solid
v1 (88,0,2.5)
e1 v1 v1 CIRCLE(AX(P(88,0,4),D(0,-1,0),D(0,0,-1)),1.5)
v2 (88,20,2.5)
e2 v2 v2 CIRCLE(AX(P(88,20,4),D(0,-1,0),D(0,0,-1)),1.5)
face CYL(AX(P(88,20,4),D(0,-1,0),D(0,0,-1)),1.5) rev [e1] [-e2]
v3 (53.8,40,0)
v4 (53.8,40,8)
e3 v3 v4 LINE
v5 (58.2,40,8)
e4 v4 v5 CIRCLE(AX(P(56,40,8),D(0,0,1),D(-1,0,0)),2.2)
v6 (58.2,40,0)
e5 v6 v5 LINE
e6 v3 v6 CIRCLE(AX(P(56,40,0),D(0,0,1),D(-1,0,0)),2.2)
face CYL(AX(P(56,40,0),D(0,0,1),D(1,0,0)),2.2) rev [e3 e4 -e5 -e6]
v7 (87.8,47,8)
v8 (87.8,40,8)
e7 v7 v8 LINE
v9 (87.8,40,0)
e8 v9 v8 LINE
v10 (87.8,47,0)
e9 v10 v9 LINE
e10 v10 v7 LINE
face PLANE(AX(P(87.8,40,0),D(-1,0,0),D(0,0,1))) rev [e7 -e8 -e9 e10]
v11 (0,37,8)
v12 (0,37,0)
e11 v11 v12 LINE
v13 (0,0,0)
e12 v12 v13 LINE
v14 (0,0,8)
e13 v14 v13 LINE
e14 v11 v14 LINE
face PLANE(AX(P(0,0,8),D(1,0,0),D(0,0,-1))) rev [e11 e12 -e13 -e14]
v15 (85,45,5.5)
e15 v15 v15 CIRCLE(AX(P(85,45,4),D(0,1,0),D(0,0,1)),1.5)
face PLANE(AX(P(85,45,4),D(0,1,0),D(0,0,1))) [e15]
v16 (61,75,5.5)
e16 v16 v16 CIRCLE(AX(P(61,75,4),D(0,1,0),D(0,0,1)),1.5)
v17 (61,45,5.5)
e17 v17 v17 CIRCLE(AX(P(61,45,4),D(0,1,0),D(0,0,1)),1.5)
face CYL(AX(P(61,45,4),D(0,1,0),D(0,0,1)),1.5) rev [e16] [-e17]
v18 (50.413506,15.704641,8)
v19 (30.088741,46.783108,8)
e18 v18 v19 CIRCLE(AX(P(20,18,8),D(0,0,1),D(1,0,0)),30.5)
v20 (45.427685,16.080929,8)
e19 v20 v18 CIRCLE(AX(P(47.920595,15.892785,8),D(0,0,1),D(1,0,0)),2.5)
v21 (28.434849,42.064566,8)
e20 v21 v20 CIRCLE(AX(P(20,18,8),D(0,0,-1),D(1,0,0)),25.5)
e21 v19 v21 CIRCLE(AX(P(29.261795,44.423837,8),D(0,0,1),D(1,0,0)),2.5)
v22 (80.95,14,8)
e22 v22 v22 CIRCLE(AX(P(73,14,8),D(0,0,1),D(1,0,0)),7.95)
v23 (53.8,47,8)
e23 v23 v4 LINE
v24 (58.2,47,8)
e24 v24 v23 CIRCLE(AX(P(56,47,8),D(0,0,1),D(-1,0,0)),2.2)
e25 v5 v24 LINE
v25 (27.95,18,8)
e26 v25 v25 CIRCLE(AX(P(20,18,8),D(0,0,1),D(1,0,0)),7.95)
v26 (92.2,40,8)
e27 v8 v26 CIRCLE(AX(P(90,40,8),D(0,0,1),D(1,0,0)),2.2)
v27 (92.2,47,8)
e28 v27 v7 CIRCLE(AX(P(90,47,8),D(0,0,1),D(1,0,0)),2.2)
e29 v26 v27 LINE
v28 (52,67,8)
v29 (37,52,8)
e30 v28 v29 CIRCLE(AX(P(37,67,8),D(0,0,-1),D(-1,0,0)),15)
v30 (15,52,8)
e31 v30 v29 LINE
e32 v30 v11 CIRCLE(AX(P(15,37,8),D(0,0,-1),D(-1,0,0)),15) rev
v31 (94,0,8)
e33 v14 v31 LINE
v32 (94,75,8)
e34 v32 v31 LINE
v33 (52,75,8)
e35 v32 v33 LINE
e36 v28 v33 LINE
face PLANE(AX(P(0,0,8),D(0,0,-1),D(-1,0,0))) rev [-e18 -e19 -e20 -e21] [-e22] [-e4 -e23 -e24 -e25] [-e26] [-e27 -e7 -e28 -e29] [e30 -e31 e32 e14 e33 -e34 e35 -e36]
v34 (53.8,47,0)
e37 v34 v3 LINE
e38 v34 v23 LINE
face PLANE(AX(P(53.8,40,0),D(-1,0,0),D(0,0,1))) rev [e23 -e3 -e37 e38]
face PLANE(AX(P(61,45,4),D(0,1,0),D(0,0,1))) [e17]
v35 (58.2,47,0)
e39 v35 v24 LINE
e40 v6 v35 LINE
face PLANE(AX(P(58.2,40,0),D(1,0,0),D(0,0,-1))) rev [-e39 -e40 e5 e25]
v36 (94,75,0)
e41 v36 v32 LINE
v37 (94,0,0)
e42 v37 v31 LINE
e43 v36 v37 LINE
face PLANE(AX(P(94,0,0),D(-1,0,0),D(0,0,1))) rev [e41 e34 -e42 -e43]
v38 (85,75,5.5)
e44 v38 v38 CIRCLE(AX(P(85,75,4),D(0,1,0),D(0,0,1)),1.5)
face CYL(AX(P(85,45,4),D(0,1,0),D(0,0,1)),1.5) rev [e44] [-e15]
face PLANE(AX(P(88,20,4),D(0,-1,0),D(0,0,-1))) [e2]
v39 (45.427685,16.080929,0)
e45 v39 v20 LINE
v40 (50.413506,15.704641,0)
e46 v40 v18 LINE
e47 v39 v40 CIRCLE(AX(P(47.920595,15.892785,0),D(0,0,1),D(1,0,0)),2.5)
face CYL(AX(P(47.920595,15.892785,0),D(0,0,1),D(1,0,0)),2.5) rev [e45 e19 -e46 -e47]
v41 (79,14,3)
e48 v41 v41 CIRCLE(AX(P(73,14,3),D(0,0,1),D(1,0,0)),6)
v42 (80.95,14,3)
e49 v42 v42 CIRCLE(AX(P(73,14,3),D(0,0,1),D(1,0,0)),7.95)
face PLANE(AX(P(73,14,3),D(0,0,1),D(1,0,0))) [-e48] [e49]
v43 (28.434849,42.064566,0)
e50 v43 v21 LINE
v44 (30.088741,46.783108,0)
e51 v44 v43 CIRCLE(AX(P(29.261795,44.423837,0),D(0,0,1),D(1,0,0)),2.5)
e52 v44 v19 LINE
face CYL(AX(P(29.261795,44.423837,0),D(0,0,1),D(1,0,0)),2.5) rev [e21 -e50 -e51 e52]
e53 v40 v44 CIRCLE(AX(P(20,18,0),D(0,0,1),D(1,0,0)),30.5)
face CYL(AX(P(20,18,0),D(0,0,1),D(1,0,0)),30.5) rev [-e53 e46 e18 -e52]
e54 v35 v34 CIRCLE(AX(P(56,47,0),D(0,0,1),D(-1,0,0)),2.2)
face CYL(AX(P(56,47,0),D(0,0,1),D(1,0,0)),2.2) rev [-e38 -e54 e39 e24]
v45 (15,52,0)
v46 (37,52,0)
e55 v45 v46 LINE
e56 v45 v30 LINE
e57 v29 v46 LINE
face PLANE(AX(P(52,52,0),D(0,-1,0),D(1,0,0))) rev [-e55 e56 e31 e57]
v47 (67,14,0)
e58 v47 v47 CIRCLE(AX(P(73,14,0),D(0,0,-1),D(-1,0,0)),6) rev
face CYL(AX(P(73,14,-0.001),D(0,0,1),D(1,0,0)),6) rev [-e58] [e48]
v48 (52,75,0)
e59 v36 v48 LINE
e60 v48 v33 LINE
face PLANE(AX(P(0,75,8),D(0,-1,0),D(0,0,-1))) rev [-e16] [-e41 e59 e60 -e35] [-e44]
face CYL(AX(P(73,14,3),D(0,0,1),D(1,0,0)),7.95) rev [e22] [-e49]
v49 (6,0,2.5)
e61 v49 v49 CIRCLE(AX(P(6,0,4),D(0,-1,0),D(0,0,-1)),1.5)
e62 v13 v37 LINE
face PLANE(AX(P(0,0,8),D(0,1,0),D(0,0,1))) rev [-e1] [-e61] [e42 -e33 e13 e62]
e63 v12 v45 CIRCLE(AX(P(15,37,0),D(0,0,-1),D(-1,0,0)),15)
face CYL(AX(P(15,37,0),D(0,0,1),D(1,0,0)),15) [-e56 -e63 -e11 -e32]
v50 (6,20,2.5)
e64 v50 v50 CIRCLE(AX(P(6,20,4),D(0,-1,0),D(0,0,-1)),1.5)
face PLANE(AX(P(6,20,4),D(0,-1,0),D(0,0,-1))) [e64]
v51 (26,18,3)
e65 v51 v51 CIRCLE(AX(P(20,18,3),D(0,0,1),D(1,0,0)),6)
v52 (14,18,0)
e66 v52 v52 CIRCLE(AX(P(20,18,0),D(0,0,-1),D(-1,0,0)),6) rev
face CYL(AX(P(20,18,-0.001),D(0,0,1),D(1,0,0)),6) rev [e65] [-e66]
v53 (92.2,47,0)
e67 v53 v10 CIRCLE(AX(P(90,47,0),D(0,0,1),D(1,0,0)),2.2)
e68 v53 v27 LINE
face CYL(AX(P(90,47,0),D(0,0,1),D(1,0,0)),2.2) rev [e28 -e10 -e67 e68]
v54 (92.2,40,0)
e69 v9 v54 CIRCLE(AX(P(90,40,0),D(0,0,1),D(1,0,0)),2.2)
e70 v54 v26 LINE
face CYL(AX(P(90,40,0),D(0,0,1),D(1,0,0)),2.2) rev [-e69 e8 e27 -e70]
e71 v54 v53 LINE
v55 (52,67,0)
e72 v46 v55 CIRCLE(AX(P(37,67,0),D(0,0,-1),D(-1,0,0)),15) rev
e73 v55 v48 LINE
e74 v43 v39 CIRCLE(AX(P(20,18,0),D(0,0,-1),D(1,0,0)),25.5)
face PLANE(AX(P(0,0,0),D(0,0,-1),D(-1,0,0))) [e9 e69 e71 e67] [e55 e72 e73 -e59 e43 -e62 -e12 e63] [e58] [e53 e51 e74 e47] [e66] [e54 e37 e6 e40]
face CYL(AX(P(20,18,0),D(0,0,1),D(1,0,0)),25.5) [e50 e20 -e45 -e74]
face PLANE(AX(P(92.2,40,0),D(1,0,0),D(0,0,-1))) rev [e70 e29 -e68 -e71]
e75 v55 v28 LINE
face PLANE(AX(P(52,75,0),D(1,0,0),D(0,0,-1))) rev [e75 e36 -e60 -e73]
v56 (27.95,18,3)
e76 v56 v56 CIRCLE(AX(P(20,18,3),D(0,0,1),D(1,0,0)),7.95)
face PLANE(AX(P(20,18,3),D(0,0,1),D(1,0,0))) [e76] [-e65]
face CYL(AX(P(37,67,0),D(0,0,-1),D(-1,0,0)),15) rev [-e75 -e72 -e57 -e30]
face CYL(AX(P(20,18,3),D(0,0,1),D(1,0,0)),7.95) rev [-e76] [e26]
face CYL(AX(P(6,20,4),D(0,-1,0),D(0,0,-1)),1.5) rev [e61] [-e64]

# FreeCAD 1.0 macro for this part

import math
import FreeCAD as App
import Part
import Sketcher
from FreeCAD import Vector
Q = App.Units.Quantity


def edges_at(feature, points):
    """Names of the edges that pass closest to the given points."""
    edges = feature.Shape.Edges
    near = lambda p: min(range(len(edges)), key=lambda i: edges[i].distToShape(Part.Vertex(*p))[0])
    return sorted({f"Edge{near(p) + 1}" for p in points})

doc = App.newDocument("Part")
params = doc.addObject("Spreadsheet::Sheet", "Params")
for row, (alias, value) in enumerate([
    ("sketch1_height", "75 mm"),
    ("pad1_length", "8 mm"),
    ("sketch2_diameter", "15.9 mm"),
    ("pocket1_length", "5 mm"),
    ("sketch3_diameter", "12 mm"),
    ("sketch4_diameter", "12 mm"),
    ("sketch5_radius", "30.5 mm"),
    ("sketch5_radius2", "2.5 mm"),
    ("sketch6_height", "75 mm"),
    ("sketch7_radius", "2.2 mm"),
    ("sketch7_height", "7 mm"),
    ("sketch8_width", "52 mm"),
    ("sketch8_height", "23 mm"),
    ("sketch9_diameter", "3 mm"),
    ("pocket8_length", "30 mm"),
    ("fillet_radius", "15 mm"),
    ("sketch10_diameter", "3 mm"),
    ("pocket9_length", "20 mm"),
], start=1):
    params.set(f"A{row}", alias)
    params.set(f"B{row}", "=" + value)
    params.setAlias(f"B{row}", alias)

body = doc.addObject("PartDesign::Body", "Body")

# Sketch on XY plane
sketch1 = body.newObject("Sketcher::SketchObject", "Sketch")
sketch1.AttachmentSupport = (doc.getObject("XY_Plane"), [""])
sketch1.MapMode = "FlatFace"
sketch1.addGeometry([
    Part.LineSegment(Vector(0, 75, 0), Vector(0, 0, 0)),
    Part.LineSegment(Vector(0, 0, 0), Vector(114, 0, 0)),
    Part.LineSegment(Vector(114, 0, 0), Vector(114, 75, 0)),
    Part.LineSegment(Vector(114, 75, 0), Vector(0, 75, 0)),
], False)
sketch1.addConstraint([
    Sketcher.Constraint("Coincident", 0, 2, 1, 1),
    Sketcher.Constraint("Coincident", 1, 2, 2, 1),
    Sketcher.Constraint("Coincident", 2, 2, 3, 1),
    Sketcher.Constraint("Coincident", 3, 2, 0, 1),
    Sketcher.Constraint("Vertical", 0),
    Sketcher.Constraint("Horizontal", 1),
    Sketcher.Constraint("Vertical", 2),
    Sketcher.Constraint("Horizontal", 3),
    Sketcher.Constraint("Coincident", 0, 2, -1, 1),
    Sketcher.Constraint("DistanceY", 0, 2, 0, 1, Q("75 mm")),
    Sketcher.Constraint("DistanceX", 1, 1, 1, 2, Q("114.43299 mm")),
])
sketch1.setExpression("Constraints[9]", "Params.sketch1_height")
pad1 = body.newObject("PartDesign::Pad", "Pad")
pad1.Profile = sketch1
pad1.setExpression("Length", "Params.pad1_length")

# Sketch on XY plane
sketch2 = body.newObject("Sketcher::SketchObject", "Sketch001")
sketch2.AttachmentSupport = (doc.getObject("XY_Plane"), [""])
sketch2.MapMode = "FlatFace"
sketch2.AttachmentOffset = App.Placement(Vector(0, 0, 8), App.Rotation())
sketch2.addGeometry([
    Part.Circle(Vector(20, 18, 0), Vector(0, 0, 1), 8),
    Part.Circle(Vector(73, 14, 0), Vector(0, 0, 1), 8),
], False)
sketch2.addConstraint([
    Sketcher.Constraint("Equal", 0, 1),
    Sketcher.Constraint("Diameter", 0, Q("15.9 mm")),
    Sketcher.Constraint("DistanceX", -1, 1, 0, 3, Q("20 mm")),
    Sketcher.Constraint("DistanceY", -1, 1, 0, 3, Q("18 mm")),
    Sketcher.Constraint("DistanceX", -1, 1, 1, 3, Q("73 mm")),
    Sketcher.Constraint("DistanceY", -1, 1, 1, 3, Q("14 mm")),
])
sketch2.setExpression("Constraints[1]", "Params.sketch2_diameter")
pocket1 = body.newObject("PartDesign::Pocket", "Pocket")
pocket1.Profile = sketch2
pocket1.setExpression("Length", "Params.pocket1_length")

# Sketch on XY plane
sketch3 = body.newObject("Sketcher::SketchObject", "Sketch002")
sketch3.AttachmentSupport = (doc.getObject("XY_Plane"), [""])
sketch3.MapMode = "FlatFace"
sketch3.AttachmentOffset = App.Placement(Vector(0, 0, 3), App.Rotation())
sketch3.addGeometry(Part.Circle(Vector(20, 18, 0), Vector(0, 0, 1), 6), False)
sketch3.addConstraint([
    Sketcher.Constraint("Diameter", 0, Q("12 mm")),
    Sketcher.Constraint("DistanceX", -1, 1, 0, 3, Q("20 mm")),
    Sketcher.Constraint("DistanceY", -1, 1, 0, 3, Q("18 mm")),
])
sketch3.setExpression("Constraints[0]", "Params.sketch3_diameter")
pocket2 = body.newObject("PartDesign::Pocket", "Pocket001")
pocket2.Profile = sketch3
pocket2.Type = "UpToFirst"

# Sketch on XY plane
sketch4 = body.newObject("Sketcher::SketchObject", "Sketch003")
sketch4.AttachmentSupport = (doc.getObject("XY_Plane"), [""])
sketch4.MapMode = "FlatFace"
sketch4.AttachmentOffset = App.Placement(Vector(0, 0, 3), App.Rotation())
sketch4.addGeometry(Part.Circle(Vector(73, 14, 0), Vector(0, 0, 1), 6), False)
sketch4.addConstraint([
    Sketcher.Constraint("Diameter", 0, Q("12 mm")),
    Sketcher.Constraint("DistanceX", -1, 1, 0, 3, Q("73 mm")),
    Sketcher.Constraint("DistanceY", -1, 1, 0, 3, Q("14 mm")),
])
sketch4.setExpression("Constraints[0]", "Params.sketch4_diameter")
pocket3 = body.newObject("PartDesign::Pocket", "Pocket002")
pocket3.Profile = sketch4
pocket3.Type = "UpToFirst"

# Sketch on XY plane
sketch5 = body.newObject("Sketcher::SketchObject", "Sketch004")
sketch5.AttachmentSupport = (doc.getObject("XY_Plane"), [""])
sketch5.MapMode = "FlatFace"
sketch5.AttachmentOffset = App.Placement(Vector(0, 0, 8), App.Rotation())
sketch5.addGeometry([
    Part.ArcOfCircle(Part.Circle(Vector(20, 18, 0), Vector(0, 0, 1), 30.5), math.radians(-4), math.radians(71)),
    Part.ArcOfCircle(Part.Circle(Vector(29.3, 44.4, 0), Vector(0, 0, 1), 2.5), math.radians(71), math.radians(251)),
    Part.ArcOfCircle(Part.Circle(Vector(20, 18, 0), Vector(0, 0, 1), 25.5), math.radians(-4), math.radians(71)),
    Part.ArcOfCircle(Part.Circle(Vector(47.9, 15.9, 0), Vector(0, 0, 1), 2.5), math.radians(176), math.radians(356)),
], False)
sketch5.addConstraint([
    Sketcher.Constraint("Tangent", 0, 2, 1, 1),
    Sketcher.Constraint("Tangent", 1, 2, 2, 2),
    Sketcher.Constraint("Tangent", 2, 1, 3, 1),
    Sketcher.Constraint("Tangent", 3, 2, 0, 1),
    Sketcher.Constraint("Coincident", 2, 3, 0, 3),
    Sketcher.Constraint("Radius", 0, Q("30.5 mm")),
    Sketcher.Constraint("Radius", 1, Q("2.5 mm")),
    Sketcher.Constraint("DistanceX", -1, 1, 0, 3, Q("20 mm")),
    Sketcher.Constraint("DistanceY", -1, 1, 0, 3, Q("18 mm")),
    Sketcher.Constraint("DistanceX", 1, 3, 3, 3, Q("18.6588 mm")),
    Sketcher.Constraint("DistanceX", -1, 1, 0, 2, Q("30.088741 mm")),
])
sketch5.setExpression("Constraints[5]", "Params.sketch5_radius")
sketch5.setExpression("Constraints[6]", "Params.sketch5_radius2")
pocket4 = body.newObject("PartDesign::Pocket", "Pocket003")
pocket4.Profile = sketch5
pocket4.Type = "ThroughAll"

# Sketch on XY plane
sketch6 = body.newObject("Sketcher::SketchObject", "Sketch005")
sketch6.AttachmentSupport = (doc.getObject("XY_Plane"), [""])
sketch6.MapMode = "FlatFace"
sketch6.AttachmentOffset = App.Placement(Vector(0, 0, 8), App.Rotation())
sketch6.addGeometry([
    Part.LineSegment(Vector(94, 75, 0), Vector(94, 0, 0)),
    Part.LineSegment(Vector(94, 0, 0), Vector(114, 0, 0)),
    Part.LineSegment(Vector(114, 0, 0), Vector(114, 75, 0)),
    Part.LineSegment(Vector(114, 75, 0), Vector(94, 75, 0)),
], False)
sketch6.addConstraint([
    Sketcher.Constraint("Coincident", 0, 2, 1, 1),
    Sketcher.Constraint("Coincident", 1, 2, 2, 1),
    Sketcher.Constraint("Coincident", 2, 2, 3, 1),
    Sketcher.Constraint("Coincident", 3, 2, 0, 1),
    Sketcher.Constraint("Vertical", 0),
    Sketcher.Constraint("Horizontal", 1),
    Sketcher.Constraint("Vertical", 2),
    Sketcher.Constraint("Horizontal", 3),
    Sketcher.Constraint("PointOnObject", 0, 2, -1),
    Sketcher.Constraint("DistanceY", 0, 2, 0, 1, Q("75 mm")),
    Sketcher.Constraint("DistanceX", -1, 1, 0, 2, Q("94 mm")),
    Sketcher.Constraint("DistanceX", 1, 1, 1, 2, Q("20.43299 mm")),
])
sketch6.setExpression("Constraints[9]", "Params.sketch6_height")
pocket5 = body.newObject("PartDesign::Pocket", "Pocket004")
pocket5.Profile = sketch6
pocket5.Type = "ThroughAll"

# Sketch on XY plane
sketch7 = body.newObject("Sketcher::SketchObject", "Sketch006")
sketch7.AttachmentSupport = (doc.getObject("XY_Plane"), [""])
sketch7.MapMode = "FlatFace"
sketch7.AttachmentOffset = App.Placement(Vector(0, 0, 8), App.Rotation())
sketch7.addGeometry([
    Part.LineSegment(Vector(87.8, 47, 0), Vector(87.8, 40, 0)),  # 0
    Part.ArcOfCircle(Part.Circle(Vector(90, 40, 0), Vector(0, 0, 1), 2.2), math.radians(180), math.radians(360)),  # 1
    Part.LineSegment(Vector(92.2, 40, 0), Vector(92.2, 47, 0)),  # 2
    Part.ArcOfCircle(Part.Circle(Vector(90, 47, 0), Vector(0, 0, 1), 2.2), math.radians(0), math.radians(180)),  # 3
    Part.LineSegment(Vector(58.2, 40, 0), Vector(58.2, 47, 0)),  # 4
    Part.ArcOfCircle(Part.Circle(Vector(56, 47, 0), Vector(0, 0, 1), 2.2), math.radians(0), math.radians(180)),  # 5
    Part.LineSegment(Vector(53.8, 47, 0), Vector(53.8, 40, 0)),  # 6
    Part.ArcOfCircle(Part.Circle(Vector(56, 40, 0), Vector(0, 0, 1), 2.2), math.radians(180), math.radians(360)),  # 7
], False)
sketch7.addConstraint([
    Sketcher.Constraint("Tangent", 0, 2, 1, 1),
    Sketcher.Constraint("Tangent", 1, 2, 2, 1),
    Sketcher.Constraint("Tangent", 2, 2, 3, 1),
    Sketcher.Constraint("Tangent", 3, 2, 0, 1),
    Sketcher.Constraint("Tangent", 4, 2, 5, 1),
    Sketcher.Constraint("Tangent", 5, 2, 6, 1),
    Sketcher.Constraint("Tangent", 6, 2, 7, 1),
    Sketcher.Constraint("Tangent", 7, 2, 4, 1),
    Sketcher.Constraint("Vertical", 0),
    Sketcher.Constraint("Vertical", 2),
    Sketcher.Constraint("Vertical", 4),
    Sketcher.Constraint("Vertical", 6),
    Sketcher.Constraint("Equal", 3, 5),
    Sketcher.Constraint("Horizontal", 3, 3, 5, 3),
    Sketcher.Constraint("Horizontal", 1, 3, 7, 3),
    Sketcher.Constraint("Radius", 1, Q("2.2 mm")),
    Sketcher.Constraint("DistanceY", 0, 2, 0, 1, Q("7 mm")),
    Sketcher.Constraint("DistanceX", -1, 1, 1, 3, Q("90 mm")),
    Sketcher.Constraint("DistanceY", -1, 1, 1, 3, Q("40 mm")),
    Sketcher.Constraint("DistanceX", -1, 1, 5, 3, Q("56 mm")),
])
sketch7.setExpression("Constraints[15]", "Params.sketch7_radius")
sketch7.setExpression("Constraints[16]", "Params.sketch7_height")
pocket6 = body.newObject("PartDesign::Pocket", "Pocket005")
pocket6.Profile = sketch7
pocket6.Type = "ThroughAll"

# Sketch on XY plane
sketch8 = body.newObject("Sketcher::SketchObject", "Sketch007")
sketch8.AttachmentSupport = (doc.getObject("XY_Plane"), [""])
sketch8.MapMode = "FlatFace"
sketch8.AttachmentOffset = App.Placement(Vector(0, 0, 8), App.Rotation())
sketch8.addGeometry([
    Part.LineSegment(Vector(0, 75, 0), Vector(0, 52, 0)),
    Part.LineSegment(Vector(0, 52, 0), Vector(52, 52, 0)),
    Part.LineSegment(Vector(52, 52, 0), Vector(52, 75, 0)),
    Part.LineSegment(Vector(52, 75, 0), Vector(0, 75, 0)),
], False)
sketch8.addConstraint([
    Sketcher.Constraint("Coincident", 0, 2, 1, 1),
    Sketcher.Constraint("Coincident", 1, 2, 2, 1),
    Sketcher.Constraint("Coincident", 2, 2, 3, 1),
    Sketcher.Constraint("Coincident", 3, 2, 0, 1),
    Sketcher.Constraint("Vertical", 0),
    Sketcher.Constraint("Horizontal", 1),
    Sketcher.Constraint("Vertical", 2),
    Sketcher.Constraint("Horizontal", 3),
    Sketcher.Constraint("PointOnObject", 0, 2, -2),
    Sketcher.Constraint("DistanceX", 1, 1, 1, 2, Q("52 mm")),
    Sketcher.Constraint("DistanceY", 0, 2, 0, 1, Q("23 mm")),
    Sketcher.Constraint("DistanceY", -1, 1, 0, 2, Q("52 mm")),
])
sketch8.setExpression("Constraints[9]", "Params.sketch8_width")
sketch8.setExpression("Constraints[10]", "Params.sketch8_height")
pocket7 = body.newObject("PartDesign::Pocket", "Pocket006")
pocket7.Profile = sketch8
pocket7.Type = "ThroughAll"

# Sketch on XZ plane
sketch9 = body.newObject("Sketcher::SketchObject", "Sketch008")
sketch9.AttachmentSupport = (doc.getObject("XZ_Plane"), [""])
sketch9.MapMode = "FlatFace"
sketch9.AttachmentOffset = App.Placement(Vector(0, 0, -75), App.Rotation())
sketch9.addGeometry([
    Part.Circle(Vector(85, 4, 0), Vector(0, 0, 1), 1.5),
    Part.Circle(Vector(61, 4, 0), Vector(0, 0, 1), 1.5),
], False)
sketch9.addConstraint([
    Sketcher.Constraint("Equal", 0, 1),
    Sketcher.Constraint("Horizontal", 0, 3, 1, 3),
    Sketcher.Constraint("Diameter", 0, Q("3 mm")),
    Sketcher.Constraint("DistanceX", -1, 1, 0, 3, Q("85 mm")),
    Sketcher.Constraint("DistanceY", -1, 1, 0, 3, Q("4 mm")),
    Sketcher.Constraint("DistanceX", -1, 1, 1, 3, Q("61 mm")),
])
sketch9.setExpression("Constraints[2]", "Params.sketch9_diameter")
pocket8 = body.newObject("PartDesign::Pocket", "Pocket007")
pocket8.Profile = sketch9
pocket8.setExpression("Length", "Params.pocket8_length")
pocket8.Reversed = True
doc.recompute()

fillet = body.newObject("PartDesign::Fillet", "Fillet")
fillet.Base = (pocket8, edges_at(pocket8, [(52, 52, 4), (0, 52, 4)]))
fillet.setExpression("Radius", "Params.fillet_radius")

# Sketch on XZ plane
sketch10 = body.newObject("Sketcher::SketchObject", "Sketch009")
sketch10.AttachmentSupport = (doc.getObject("XZ_Plane"), [""])
sketch10.MapMode = "FlatFace"
sketch10.addGeometry([
    Part.Circle(Vector(6, 4, 0), Vector(0, 0, 1), 1.5),
    Part.Circle(Vector(88, 4, 0), Vector(0, 0, 1), 1.5),
], False)
sketch10.addConstraint([
    Sketcher.Constraint("Equal", 0, 1),
    Sketcher.Constraint("Horizontal", 0, 3, 1, 3),
    Sketcher.Constraint("Diameter", 0, Q("3 mm")),
    Sketcher.Constraint("DistanceX", -1, 1, 0, 3, Q("6 mm")),
    Sketcher.Constraint("DistanceY", -1, 1, 0, 3, Q("4 mm")),
    Sketcher.Constraint("DistanceX", -1, 1, 1, 3, Q("88 mm")),
])
sketch10.setExpression("Constraints[2]", "Params.sketch10_diameter")
pocket9 = body.newObject("PartDesign::Pocket", "Pocket008")
pocket9.Profile = sketch10
pocket9.setExpression("Length", "Params.pocket9_length")

doc.recompute()
